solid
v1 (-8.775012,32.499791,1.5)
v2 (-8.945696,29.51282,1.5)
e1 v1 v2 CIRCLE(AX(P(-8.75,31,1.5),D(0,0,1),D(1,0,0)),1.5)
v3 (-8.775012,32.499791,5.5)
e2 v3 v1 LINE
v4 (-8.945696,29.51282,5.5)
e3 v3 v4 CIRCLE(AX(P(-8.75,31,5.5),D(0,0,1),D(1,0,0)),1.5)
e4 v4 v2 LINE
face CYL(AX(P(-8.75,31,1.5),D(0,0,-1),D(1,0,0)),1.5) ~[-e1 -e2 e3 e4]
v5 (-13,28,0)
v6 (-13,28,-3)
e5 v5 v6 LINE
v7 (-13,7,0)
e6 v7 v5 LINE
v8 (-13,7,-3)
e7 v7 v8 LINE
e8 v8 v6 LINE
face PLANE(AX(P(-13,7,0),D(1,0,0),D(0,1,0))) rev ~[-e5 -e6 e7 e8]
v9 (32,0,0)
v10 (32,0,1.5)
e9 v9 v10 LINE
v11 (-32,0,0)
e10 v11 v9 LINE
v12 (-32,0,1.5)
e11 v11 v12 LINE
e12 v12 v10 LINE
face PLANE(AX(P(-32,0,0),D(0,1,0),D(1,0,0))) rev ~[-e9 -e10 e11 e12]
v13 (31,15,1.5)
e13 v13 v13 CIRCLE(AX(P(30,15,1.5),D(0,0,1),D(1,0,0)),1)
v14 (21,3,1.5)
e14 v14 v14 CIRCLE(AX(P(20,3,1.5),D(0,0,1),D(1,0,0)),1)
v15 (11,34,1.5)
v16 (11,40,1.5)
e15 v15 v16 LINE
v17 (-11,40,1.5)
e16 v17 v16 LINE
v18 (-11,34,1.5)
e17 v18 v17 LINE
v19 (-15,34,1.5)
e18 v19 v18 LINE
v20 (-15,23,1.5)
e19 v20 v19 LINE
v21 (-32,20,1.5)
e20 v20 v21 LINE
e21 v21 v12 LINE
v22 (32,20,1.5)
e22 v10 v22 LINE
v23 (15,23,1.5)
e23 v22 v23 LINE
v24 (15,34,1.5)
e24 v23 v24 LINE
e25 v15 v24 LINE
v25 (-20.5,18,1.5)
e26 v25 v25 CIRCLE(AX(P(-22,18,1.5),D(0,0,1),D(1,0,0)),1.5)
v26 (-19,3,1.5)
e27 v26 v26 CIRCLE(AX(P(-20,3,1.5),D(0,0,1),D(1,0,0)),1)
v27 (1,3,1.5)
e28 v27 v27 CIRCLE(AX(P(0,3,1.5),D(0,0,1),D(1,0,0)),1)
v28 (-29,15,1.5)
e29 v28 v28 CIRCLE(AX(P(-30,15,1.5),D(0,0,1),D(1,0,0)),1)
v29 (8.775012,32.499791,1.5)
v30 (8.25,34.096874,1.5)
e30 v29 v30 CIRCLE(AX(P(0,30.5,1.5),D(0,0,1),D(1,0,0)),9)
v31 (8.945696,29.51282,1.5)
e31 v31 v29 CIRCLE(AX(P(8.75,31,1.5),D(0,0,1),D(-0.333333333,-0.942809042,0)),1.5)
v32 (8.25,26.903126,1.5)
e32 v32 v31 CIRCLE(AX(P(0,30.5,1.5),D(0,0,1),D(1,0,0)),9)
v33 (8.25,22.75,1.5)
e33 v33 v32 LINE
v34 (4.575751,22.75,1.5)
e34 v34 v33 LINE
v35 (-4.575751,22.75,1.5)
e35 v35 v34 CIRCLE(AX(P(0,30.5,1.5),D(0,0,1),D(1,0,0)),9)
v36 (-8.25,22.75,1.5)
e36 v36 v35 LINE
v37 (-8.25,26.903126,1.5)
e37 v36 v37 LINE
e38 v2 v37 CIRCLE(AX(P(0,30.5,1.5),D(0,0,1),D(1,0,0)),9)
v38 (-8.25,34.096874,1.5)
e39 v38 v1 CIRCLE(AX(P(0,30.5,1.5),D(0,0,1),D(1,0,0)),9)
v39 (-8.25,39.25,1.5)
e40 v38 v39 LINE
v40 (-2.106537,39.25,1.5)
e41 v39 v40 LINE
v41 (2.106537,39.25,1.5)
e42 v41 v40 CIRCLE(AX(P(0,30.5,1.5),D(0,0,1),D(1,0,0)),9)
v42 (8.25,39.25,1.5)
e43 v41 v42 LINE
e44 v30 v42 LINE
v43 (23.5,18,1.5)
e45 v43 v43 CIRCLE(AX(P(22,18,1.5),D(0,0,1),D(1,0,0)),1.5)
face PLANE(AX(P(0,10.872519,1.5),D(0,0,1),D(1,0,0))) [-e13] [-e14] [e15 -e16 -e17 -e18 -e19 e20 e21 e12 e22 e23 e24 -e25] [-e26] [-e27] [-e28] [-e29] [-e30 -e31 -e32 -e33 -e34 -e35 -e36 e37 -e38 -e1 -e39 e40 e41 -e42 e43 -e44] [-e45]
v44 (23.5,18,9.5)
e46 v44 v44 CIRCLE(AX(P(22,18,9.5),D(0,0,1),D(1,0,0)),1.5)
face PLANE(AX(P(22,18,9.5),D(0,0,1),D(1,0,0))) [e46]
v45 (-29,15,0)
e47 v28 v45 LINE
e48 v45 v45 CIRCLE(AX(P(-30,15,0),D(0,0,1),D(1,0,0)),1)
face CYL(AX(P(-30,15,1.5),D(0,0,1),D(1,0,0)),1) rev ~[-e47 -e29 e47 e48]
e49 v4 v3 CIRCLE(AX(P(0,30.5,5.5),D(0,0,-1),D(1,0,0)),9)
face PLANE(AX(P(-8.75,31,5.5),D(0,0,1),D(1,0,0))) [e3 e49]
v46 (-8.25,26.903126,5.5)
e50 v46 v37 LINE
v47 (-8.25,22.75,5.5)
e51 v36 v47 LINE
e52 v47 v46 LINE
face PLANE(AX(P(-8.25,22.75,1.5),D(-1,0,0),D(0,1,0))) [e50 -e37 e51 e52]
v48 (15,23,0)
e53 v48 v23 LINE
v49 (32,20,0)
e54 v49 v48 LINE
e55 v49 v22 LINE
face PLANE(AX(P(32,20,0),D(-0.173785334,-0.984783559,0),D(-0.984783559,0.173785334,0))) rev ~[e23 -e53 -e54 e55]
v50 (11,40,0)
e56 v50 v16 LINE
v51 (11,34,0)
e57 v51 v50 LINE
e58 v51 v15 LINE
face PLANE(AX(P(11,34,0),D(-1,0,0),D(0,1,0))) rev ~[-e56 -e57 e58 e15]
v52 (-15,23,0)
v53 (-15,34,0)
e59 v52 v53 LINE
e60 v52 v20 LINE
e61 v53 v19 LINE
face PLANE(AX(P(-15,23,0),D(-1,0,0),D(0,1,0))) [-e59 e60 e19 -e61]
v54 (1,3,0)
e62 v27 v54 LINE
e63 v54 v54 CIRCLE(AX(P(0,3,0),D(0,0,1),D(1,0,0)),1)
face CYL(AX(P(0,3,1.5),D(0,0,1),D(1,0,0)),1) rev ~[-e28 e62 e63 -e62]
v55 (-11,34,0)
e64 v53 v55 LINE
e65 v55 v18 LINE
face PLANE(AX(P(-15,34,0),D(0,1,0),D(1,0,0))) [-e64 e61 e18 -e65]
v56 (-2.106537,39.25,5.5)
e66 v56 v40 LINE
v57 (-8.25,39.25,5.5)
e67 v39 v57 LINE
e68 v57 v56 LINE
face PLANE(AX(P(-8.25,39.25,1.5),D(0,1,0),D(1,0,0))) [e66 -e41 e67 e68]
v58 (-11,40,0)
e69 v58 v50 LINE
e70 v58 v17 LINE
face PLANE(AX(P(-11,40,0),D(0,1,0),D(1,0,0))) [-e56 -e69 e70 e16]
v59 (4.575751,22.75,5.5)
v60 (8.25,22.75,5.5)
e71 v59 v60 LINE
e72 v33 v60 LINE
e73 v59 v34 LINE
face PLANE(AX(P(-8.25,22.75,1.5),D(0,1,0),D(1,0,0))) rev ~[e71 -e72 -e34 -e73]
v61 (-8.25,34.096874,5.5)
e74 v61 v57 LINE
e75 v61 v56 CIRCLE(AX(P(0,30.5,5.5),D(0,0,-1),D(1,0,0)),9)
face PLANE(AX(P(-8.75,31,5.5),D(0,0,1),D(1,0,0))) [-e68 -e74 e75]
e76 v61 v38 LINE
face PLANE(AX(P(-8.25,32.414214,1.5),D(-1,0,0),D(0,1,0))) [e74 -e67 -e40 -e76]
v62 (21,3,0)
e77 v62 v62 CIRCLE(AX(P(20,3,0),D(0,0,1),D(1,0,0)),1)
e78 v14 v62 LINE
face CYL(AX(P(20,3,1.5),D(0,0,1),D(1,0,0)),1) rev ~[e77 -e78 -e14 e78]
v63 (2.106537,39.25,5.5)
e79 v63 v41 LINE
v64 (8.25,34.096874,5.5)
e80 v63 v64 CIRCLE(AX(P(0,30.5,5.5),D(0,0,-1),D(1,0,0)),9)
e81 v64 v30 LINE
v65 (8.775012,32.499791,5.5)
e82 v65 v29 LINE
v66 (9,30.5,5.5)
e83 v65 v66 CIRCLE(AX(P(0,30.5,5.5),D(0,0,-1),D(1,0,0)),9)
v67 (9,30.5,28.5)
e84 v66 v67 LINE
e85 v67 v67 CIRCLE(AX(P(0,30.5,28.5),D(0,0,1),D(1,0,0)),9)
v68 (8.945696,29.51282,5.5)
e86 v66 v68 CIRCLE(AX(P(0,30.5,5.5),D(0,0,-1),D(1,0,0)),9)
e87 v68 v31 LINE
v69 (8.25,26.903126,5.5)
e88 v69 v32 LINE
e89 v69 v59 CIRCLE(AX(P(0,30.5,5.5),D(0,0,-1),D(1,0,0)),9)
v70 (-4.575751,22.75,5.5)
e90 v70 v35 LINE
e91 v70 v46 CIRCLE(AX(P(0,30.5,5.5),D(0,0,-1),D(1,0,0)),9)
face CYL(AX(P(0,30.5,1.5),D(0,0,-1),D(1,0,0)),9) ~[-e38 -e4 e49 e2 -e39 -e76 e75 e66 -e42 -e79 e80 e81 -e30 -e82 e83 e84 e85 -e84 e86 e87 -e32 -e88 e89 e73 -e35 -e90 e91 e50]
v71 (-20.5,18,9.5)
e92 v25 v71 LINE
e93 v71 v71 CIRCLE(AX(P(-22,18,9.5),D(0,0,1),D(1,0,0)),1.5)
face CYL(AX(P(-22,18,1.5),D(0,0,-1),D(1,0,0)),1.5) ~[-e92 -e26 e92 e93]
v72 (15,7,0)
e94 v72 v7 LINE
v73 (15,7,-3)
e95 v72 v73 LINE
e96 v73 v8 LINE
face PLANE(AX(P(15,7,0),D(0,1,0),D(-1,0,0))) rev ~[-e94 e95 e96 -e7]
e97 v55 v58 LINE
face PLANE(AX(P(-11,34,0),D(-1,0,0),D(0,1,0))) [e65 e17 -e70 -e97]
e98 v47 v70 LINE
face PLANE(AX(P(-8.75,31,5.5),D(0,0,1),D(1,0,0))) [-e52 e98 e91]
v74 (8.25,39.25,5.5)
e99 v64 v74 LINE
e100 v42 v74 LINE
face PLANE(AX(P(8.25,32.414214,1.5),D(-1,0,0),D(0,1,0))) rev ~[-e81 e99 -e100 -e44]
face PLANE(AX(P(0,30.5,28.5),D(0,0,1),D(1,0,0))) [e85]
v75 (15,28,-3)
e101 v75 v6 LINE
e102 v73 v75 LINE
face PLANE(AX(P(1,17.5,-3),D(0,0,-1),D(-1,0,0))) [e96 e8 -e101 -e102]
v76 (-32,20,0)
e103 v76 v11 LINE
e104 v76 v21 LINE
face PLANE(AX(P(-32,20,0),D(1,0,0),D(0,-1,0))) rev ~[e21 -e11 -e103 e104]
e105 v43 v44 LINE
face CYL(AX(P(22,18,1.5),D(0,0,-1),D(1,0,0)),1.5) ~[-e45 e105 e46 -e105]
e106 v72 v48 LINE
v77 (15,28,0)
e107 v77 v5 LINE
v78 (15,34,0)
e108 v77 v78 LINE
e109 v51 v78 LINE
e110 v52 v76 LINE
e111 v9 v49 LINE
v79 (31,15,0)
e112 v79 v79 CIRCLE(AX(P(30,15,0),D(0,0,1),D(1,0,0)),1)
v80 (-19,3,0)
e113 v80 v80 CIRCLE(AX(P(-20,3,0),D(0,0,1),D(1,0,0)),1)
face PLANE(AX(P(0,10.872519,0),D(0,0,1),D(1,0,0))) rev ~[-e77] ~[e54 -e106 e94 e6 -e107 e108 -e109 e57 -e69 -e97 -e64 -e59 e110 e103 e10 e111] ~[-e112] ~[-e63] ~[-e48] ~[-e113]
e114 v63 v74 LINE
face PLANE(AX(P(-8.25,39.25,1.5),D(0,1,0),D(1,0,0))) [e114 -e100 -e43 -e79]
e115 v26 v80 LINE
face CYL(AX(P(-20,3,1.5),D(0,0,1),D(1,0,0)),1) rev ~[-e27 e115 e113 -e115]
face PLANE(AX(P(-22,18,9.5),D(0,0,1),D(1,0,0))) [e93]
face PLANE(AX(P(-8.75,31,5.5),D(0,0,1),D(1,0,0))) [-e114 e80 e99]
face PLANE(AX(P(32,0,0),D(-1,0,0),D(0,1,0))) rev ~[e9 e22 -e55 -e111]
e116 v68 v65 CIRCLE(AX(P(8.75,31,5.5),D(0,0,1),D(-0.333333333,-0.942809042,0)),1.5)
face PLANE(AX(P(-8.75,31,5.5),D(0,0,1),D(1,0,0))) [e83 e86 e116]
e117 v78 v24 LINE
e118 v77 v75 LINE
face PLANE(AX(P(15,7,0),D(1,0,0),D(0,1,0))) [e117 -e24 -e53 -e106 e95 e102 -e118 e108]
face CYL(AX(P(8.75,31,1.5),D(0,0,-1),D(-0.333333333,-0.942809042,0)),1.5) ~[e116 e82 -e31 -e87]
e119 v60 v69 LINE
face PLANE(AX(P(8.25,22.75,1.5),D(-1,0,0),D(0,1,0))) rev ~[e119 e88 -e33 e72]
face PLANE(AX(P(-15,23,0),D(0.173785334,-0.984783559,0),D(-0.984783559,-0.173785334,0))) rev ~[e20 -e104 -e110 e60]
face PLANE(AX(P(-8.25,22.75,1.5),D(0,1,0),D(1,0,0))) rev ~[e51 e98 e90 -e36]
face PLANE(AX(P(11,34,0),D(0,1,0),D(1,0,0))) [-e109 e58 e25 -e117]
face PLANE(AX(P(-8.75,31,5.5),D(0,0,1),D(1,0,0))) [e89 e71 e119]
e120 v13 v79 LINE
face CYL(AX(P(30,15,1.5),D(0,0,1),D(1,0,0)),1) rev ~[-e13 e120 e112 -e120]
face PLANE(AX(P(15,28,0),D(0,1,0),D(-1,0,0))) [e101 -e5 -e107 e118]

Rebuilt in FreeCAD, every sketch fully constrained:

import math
import FreeCAD as App
import Part
import Sketcher


def add_polygon(sketch, points):
    """Adds a closed chain of lines whose ends are joined by coincident constraints."""
    first, n = sketch.GeometryCount, len(points)
    for a, b in zip(points, points[1:] + points[:1]):
        sketch.addGeometry(Part.LineSegment(App.Vector(*a, 0), App.Vector(*b, 0)), False)
    for i in range(n):
        sketch.addConstraint(Sketcher.Constraint("Coincident", first + i, 2, first + (i + 1) % n, 1))

doc = App.newDocument("Part")
body = doc.addObject("PartDesign::Body", "Body")

# Sketch on XY plane
sketch1 = body.newObject("Sketcher::SketchObject", "Sketch")
sketch1.AttachmentSupport = (doc.getObject("XY_Plane"), [""])
sketch1.MapMode = "FlatFace"
add_polygon(sketch1, [(32, 0), (32, 20), (15, 23), (15, 34), (11, 34), (11, 40), (-11, 40), (-11, 34), (-15, 34), (-15, 23), (-32, 20), (-32, 0)])  # lines 0-11
sketch1.addConstraint([
    Sketcher.Constraint("Vertical", 0),
    Sketcher.Constraint("Vertical", 2),
    Sketcher.Constraint("Horizontal", 3),
    Sketcher.Constraint("Vertical", 4),
    Sketcher.Constraint("Horizontal", 5),
    Sketcher.Constraint("Vertical", 6),
    Sketcher.Constraint("Horizontal", 7),
    Sketcher.Constraint("Vertical", 8),
    Sketcher.Constraint("Vertical", 10),
    Sketcher.Constraint("Horizontal", 11),
    Sketcher.Constraint("Symmetric", 10, 2, 11, 2, -1, 1),
    Sketcher.Constraint("Symmetric", 3, 2, 6, 2, -2),
    Sketcher.Constraint("Symmetric", 1, 2, 8, 2, -2),
    Sketcher.Constraint("Horizontal", 0, 2, 9, 2),
    Sketcher.Constraint("DistanceX", 3, 2, 3, 1, 4.0),
    Sketcher.Constraint("DistanceX", 5, 2, 5, 1, 22.0),
    Sketcher.Constraint("DistanceX", 11, 1, 11, 2, 64.0),
    Sketcher.Constraint("DistanceY", 0, 1, 0, 2, 20.0),
    Sketcher.Constraint("DistanceY", 2, 1, 2, 2, 11.0),
    Sketcher.Constraint("DistanceY", 4, 1, 4, 2, 6.0),
    Sketcher.Constraint("DistanceY", -1, 1, 1, 2, 23.0),
])
pad1 = body.newObject("PartDesign::Pad", "Pad")
pad1.Profile = sketch1
pad1.Length = 1.5

# Sketch on XY plane
sketch2 = body.newObject("Sketcher::SketchObject", "Sketch001")
sketch2.AttachmentSupport = (doc.getObject("XY_Plane"), [""])
sketch2.MapMode = "FlatFace"
sketch2.AttachmentOffset = App.Placement(App.Vector(0, 0, 1.5), App.Rotation())
sketch2.addGeometry([
    Part.Circle(App.Vector(20, 3, 0), App.Vector(0, 0, 1), 1),  # 0
    Part.Circle(App.Vector(0, 3, 0), App.Vector(0, 0, 1), 1),  # 1
    Part.Circle(App.Vector(-20, 3, 0), App.Vector(0, 0, 1), 1),  # 2
    Part.Circle(App.Vector(-30, 15, 0), App.Vector(0, 0, 1), 1),  # 3
    Part.Circle(App.Vector(30, 15, 0), App.Vector(0, 0, 1), 1),  # 4
], False)
sketch2.addConstraint([
    Sketcher.Constraint("Equal", 0, 1),
    Sketcher.Constraint("Equal", 1, 2),
    Sketcher.Constraint("Equal", 2, 3),
    Sketcher.Constraint("Equal", 3, 4),
    Sketcher.Constraint("Symmetric", 0, 3, 2, 3, -2),
    Sketcher.Constraint("Symmetric", 3, 3, 4, 3, -2),
    Sketcher.Constraint("PointOnObject", 1, 3, -2),
    Sketcher.Constraint("Horizontal", 0, 3, 1, 3),
    Sketcher.Constraint("Diameter", 0, 2.0),
    Sketcher.Constraint("DistanceX", -1, 1, 0, 3, 20.0),
    Sketcher.Constraint("DistanceY", -1, 1, 0, 3, 3.0),
    Sketcher.Constraint("DistanceX", 3, 3, -1, 1, 30.0),
    Sketcher.Constraint("DistanceY", -1, 1, 3, 3, 15.0),
])
pocket1 = body.newObject("PartDesign::Pocket", "Pocket")
pocket1.Profile = sketch2
pocket1.Length = 5

# Sketch on XY plane
sketch3 = body.newObject("Sketcher::SketchObject", "Sketch002")
sketch3.AttachmentSupport = (doc.getObject("XY_Plane"), [""])
sketch3.MapMode = "FlatFace"
sketch3.AttachmentOffset = App.Placement(App.Vector(0, 0, 1.5), App.Rotation())
sketch3.addGeometry(Part.Circle(App.Vector(0, 30, 0), App.Vector(0, 0, 1), 9), False)
sketch3.addConstraint([
    Sketcher.Constraint("PointOnObject", 0, 3, -2),
    Sketcher.Constraint("Diameter", 0, 18.0),
    Sketcher.Constraint("DistanceY", -1, 1, 0, 3, 30.5),
])
pad2 = body.newObject("PartDesign::Pad", "Pad001")
pad2.Profile = sketch3
pad2.Length = 27

# Sketch on XY plane
sketch4 = body.newObject("Sketcher::SketchObject", "Sketch003")
sketch4.AttachmentSupport = (doc.getObject("XY_Plane"), [""])
sketch4.MapMode = "FlatFace"
add_polygon(sketch4, [(15, 28), (15, 7), (-13, 7), (-13, 28)])  # lines 0-3
sketch4.addConstraint([
    Sketcher.Constraint("Vertical", 0),
    Sketcher.Constraint("Horizontal", 1),
    Sketcher.Constraint("Vertical", 2),
    Sketcher.Constraint("Horizontal", 3),
    Sketcher.Constraint("DistanceX", 1, 2, 1, 1, 28.0),
    Sketcher.Constraint("DistanceY", 0, 2, 0, 1, 21.0),
    Sketcher.Constraint("DistanceX", -1, 1, 0, 2, 15.0),
    Sketcher.Constraint("DistanceY", -1, 1, 0, 2, 7.0),
])
pad3 = body.newObject("PartDesign::Pad", "Pad002")
pad3.Profile = sketch4
pad3.Length = 3
pad3.Reversed = True

# Sketch on XY plane
sketch5 = body.newObject("Sketcher::SketchObject", "Sketch004")
sketch5.AttachmentSupport = (doc.getObject("XY_Plane"), [""])
sketch5.MapMode = "FlatFace"
sketch5.AttachmentOffset = App.Placement(App.Vector(0, 0, 1.5), App.Rotation())
sketch5.addGeometry([
    Part.Circle(App.Vector(22, 18, 0), App.Vector(0, 0, 1), 1.5),
    Part.Circle(App.Vector(-22, 18, 0), App.Vector(0, 0, 1), 1.5),
], False)
sketch5.addConstraint([
    Sketcher.Constraint("Equal", 0, 1),
    Sketcher.Constraint("Symmetric", 0, 3, 1, 3, -2),
    Sketcher.Constraint("Diameter", 0, 3.0),
    Sketcher.Constraint("DistanceX", -1, 1, 0, 3, 22.0),
    Sketcher.Constraint("DistanceY", -1, 1, 0, 3, 18.0),
])
pad4 = body.newObject("PartDesign::Pad", "Pad003")
pad4.Profile = sketch5
pad4.Length = 8

# Sketch on XY plane
sketch6 = body.newObject("Sketcher::SketchObject", "Sketch005")
sketch6.AttachmentSupport = (doc.getObject("XY_Plane"), [""])
sketch6.MapMode = "FlatFace"
sketch6.AttachmentOffset = App.Placement(App.Vector(0, 0, 1.5), App.Rotation())
sketch6.addGeometry([
    Part.LineSegment(App.Vector(-8.2, 29.6, 0), App.Vector(-8.2, 22.8, 0)),  # 0
    Part.LineSegment(App.Vector(-8.2, 22.8, 0), App.Vector(8.2, 22.8, 0)),  # 1
    Part.LineSegment(App.Vector(8.2, 22.8, 0), App.Vector(8.2, 29.6, 0)),  # 2
    Part.ArcOfCircle(Part.Circle(App.Vector(8.8, 31, 0), App.Vector(0, 0, 1), 1.5), math.radians(-109), math.radians(109)),  # 3
    Part.LineSegment(App.Vector(8.2, 32.4, 0), App.Vector(8.2, 39.2, 0)),  # 4
    Part.LineSegment(App.Vector(8.2, 39.2, 0), App.Vector(-8.2, 39.2, 0)),  # 5
    Part.LineSegment(App.Vector(-8.2, 39.2, 0), App.Vector(-8.2, 32.4, 0)),  # 6
    Part.ArcOfCircle(Part.Circle(App.Vector(-8.8, 31, 0), App.Vector(0, 0, 1), 1.5), math.radians(71), math.radians(289)),  # 7
], False)
sketch6.addConstraint([
    Sketcher.Constraint("Coincident", 0, 2, 1, 1),
    Sketcher.Constraint("Coincident", 1, 2, 2, 1),
    Sketcher.Constraint("Coincident", 2, 2, 3, 1),
    Sketcher.Constraint("Coincident", 3, 2, 4, 1),
    Sketcher.Constraint("Coincident", 4, 2, 5, 1),
    Sketcher.Constraint("Coincident", 5, 2, 6, 1),
    Sketcher.Constraint("Coincident", 6, 2, 7, 1),
    Sketcher.Constraint("Coincident", 7, 2, 0, 1),
    Sketcher.Constraint("Vertical", 0),
    Sketcher.Constraint("Horizontal", 1),
    Sketcher.Constraint("Vertical", 2),
    Sketcher.Constraint("Vertical", 4),
    Sketcher.Constraint("Horizontal", 5),
    Sketcher.Constraint("Vertical", 6),
    Sketcher.Constraint("Equal", 3, 7),
    Sketcher.Constraint("Symmetric", 3, 3, 7, 3, -2),
    Sketcher.Constraint("Horizontal", 3, 2, 6, 2),
    Sketcher.Constraint("Horizontal", 2, 2, 7, 2),
    Sketcher.Constraint("Vertical", 2, 2, 3, 2),
    Sketcher.Constraint("Equal", 2, 4),
    Sketcher.Constraint("Radius", 3, 1.5),
    Sketcher.Constraint("DistanceX", 1, 1, 1, 2, 16.5),
    Sketcher.Constraint("DistanceY", -1, 1, 3, 3, 31.0),
    Sketcher.Constraint("DistanceX", 0, 2, 3, 3, 17.0),
    Sketcher.Constraint("DistanceY", 1, 2, 4, 2, 16.5),
])
pad5 = body.newObject("PartDesign::Pad", "Pad004")
pad5.Profile = sketch6
pad5.Length = 4

doc.recompute()
